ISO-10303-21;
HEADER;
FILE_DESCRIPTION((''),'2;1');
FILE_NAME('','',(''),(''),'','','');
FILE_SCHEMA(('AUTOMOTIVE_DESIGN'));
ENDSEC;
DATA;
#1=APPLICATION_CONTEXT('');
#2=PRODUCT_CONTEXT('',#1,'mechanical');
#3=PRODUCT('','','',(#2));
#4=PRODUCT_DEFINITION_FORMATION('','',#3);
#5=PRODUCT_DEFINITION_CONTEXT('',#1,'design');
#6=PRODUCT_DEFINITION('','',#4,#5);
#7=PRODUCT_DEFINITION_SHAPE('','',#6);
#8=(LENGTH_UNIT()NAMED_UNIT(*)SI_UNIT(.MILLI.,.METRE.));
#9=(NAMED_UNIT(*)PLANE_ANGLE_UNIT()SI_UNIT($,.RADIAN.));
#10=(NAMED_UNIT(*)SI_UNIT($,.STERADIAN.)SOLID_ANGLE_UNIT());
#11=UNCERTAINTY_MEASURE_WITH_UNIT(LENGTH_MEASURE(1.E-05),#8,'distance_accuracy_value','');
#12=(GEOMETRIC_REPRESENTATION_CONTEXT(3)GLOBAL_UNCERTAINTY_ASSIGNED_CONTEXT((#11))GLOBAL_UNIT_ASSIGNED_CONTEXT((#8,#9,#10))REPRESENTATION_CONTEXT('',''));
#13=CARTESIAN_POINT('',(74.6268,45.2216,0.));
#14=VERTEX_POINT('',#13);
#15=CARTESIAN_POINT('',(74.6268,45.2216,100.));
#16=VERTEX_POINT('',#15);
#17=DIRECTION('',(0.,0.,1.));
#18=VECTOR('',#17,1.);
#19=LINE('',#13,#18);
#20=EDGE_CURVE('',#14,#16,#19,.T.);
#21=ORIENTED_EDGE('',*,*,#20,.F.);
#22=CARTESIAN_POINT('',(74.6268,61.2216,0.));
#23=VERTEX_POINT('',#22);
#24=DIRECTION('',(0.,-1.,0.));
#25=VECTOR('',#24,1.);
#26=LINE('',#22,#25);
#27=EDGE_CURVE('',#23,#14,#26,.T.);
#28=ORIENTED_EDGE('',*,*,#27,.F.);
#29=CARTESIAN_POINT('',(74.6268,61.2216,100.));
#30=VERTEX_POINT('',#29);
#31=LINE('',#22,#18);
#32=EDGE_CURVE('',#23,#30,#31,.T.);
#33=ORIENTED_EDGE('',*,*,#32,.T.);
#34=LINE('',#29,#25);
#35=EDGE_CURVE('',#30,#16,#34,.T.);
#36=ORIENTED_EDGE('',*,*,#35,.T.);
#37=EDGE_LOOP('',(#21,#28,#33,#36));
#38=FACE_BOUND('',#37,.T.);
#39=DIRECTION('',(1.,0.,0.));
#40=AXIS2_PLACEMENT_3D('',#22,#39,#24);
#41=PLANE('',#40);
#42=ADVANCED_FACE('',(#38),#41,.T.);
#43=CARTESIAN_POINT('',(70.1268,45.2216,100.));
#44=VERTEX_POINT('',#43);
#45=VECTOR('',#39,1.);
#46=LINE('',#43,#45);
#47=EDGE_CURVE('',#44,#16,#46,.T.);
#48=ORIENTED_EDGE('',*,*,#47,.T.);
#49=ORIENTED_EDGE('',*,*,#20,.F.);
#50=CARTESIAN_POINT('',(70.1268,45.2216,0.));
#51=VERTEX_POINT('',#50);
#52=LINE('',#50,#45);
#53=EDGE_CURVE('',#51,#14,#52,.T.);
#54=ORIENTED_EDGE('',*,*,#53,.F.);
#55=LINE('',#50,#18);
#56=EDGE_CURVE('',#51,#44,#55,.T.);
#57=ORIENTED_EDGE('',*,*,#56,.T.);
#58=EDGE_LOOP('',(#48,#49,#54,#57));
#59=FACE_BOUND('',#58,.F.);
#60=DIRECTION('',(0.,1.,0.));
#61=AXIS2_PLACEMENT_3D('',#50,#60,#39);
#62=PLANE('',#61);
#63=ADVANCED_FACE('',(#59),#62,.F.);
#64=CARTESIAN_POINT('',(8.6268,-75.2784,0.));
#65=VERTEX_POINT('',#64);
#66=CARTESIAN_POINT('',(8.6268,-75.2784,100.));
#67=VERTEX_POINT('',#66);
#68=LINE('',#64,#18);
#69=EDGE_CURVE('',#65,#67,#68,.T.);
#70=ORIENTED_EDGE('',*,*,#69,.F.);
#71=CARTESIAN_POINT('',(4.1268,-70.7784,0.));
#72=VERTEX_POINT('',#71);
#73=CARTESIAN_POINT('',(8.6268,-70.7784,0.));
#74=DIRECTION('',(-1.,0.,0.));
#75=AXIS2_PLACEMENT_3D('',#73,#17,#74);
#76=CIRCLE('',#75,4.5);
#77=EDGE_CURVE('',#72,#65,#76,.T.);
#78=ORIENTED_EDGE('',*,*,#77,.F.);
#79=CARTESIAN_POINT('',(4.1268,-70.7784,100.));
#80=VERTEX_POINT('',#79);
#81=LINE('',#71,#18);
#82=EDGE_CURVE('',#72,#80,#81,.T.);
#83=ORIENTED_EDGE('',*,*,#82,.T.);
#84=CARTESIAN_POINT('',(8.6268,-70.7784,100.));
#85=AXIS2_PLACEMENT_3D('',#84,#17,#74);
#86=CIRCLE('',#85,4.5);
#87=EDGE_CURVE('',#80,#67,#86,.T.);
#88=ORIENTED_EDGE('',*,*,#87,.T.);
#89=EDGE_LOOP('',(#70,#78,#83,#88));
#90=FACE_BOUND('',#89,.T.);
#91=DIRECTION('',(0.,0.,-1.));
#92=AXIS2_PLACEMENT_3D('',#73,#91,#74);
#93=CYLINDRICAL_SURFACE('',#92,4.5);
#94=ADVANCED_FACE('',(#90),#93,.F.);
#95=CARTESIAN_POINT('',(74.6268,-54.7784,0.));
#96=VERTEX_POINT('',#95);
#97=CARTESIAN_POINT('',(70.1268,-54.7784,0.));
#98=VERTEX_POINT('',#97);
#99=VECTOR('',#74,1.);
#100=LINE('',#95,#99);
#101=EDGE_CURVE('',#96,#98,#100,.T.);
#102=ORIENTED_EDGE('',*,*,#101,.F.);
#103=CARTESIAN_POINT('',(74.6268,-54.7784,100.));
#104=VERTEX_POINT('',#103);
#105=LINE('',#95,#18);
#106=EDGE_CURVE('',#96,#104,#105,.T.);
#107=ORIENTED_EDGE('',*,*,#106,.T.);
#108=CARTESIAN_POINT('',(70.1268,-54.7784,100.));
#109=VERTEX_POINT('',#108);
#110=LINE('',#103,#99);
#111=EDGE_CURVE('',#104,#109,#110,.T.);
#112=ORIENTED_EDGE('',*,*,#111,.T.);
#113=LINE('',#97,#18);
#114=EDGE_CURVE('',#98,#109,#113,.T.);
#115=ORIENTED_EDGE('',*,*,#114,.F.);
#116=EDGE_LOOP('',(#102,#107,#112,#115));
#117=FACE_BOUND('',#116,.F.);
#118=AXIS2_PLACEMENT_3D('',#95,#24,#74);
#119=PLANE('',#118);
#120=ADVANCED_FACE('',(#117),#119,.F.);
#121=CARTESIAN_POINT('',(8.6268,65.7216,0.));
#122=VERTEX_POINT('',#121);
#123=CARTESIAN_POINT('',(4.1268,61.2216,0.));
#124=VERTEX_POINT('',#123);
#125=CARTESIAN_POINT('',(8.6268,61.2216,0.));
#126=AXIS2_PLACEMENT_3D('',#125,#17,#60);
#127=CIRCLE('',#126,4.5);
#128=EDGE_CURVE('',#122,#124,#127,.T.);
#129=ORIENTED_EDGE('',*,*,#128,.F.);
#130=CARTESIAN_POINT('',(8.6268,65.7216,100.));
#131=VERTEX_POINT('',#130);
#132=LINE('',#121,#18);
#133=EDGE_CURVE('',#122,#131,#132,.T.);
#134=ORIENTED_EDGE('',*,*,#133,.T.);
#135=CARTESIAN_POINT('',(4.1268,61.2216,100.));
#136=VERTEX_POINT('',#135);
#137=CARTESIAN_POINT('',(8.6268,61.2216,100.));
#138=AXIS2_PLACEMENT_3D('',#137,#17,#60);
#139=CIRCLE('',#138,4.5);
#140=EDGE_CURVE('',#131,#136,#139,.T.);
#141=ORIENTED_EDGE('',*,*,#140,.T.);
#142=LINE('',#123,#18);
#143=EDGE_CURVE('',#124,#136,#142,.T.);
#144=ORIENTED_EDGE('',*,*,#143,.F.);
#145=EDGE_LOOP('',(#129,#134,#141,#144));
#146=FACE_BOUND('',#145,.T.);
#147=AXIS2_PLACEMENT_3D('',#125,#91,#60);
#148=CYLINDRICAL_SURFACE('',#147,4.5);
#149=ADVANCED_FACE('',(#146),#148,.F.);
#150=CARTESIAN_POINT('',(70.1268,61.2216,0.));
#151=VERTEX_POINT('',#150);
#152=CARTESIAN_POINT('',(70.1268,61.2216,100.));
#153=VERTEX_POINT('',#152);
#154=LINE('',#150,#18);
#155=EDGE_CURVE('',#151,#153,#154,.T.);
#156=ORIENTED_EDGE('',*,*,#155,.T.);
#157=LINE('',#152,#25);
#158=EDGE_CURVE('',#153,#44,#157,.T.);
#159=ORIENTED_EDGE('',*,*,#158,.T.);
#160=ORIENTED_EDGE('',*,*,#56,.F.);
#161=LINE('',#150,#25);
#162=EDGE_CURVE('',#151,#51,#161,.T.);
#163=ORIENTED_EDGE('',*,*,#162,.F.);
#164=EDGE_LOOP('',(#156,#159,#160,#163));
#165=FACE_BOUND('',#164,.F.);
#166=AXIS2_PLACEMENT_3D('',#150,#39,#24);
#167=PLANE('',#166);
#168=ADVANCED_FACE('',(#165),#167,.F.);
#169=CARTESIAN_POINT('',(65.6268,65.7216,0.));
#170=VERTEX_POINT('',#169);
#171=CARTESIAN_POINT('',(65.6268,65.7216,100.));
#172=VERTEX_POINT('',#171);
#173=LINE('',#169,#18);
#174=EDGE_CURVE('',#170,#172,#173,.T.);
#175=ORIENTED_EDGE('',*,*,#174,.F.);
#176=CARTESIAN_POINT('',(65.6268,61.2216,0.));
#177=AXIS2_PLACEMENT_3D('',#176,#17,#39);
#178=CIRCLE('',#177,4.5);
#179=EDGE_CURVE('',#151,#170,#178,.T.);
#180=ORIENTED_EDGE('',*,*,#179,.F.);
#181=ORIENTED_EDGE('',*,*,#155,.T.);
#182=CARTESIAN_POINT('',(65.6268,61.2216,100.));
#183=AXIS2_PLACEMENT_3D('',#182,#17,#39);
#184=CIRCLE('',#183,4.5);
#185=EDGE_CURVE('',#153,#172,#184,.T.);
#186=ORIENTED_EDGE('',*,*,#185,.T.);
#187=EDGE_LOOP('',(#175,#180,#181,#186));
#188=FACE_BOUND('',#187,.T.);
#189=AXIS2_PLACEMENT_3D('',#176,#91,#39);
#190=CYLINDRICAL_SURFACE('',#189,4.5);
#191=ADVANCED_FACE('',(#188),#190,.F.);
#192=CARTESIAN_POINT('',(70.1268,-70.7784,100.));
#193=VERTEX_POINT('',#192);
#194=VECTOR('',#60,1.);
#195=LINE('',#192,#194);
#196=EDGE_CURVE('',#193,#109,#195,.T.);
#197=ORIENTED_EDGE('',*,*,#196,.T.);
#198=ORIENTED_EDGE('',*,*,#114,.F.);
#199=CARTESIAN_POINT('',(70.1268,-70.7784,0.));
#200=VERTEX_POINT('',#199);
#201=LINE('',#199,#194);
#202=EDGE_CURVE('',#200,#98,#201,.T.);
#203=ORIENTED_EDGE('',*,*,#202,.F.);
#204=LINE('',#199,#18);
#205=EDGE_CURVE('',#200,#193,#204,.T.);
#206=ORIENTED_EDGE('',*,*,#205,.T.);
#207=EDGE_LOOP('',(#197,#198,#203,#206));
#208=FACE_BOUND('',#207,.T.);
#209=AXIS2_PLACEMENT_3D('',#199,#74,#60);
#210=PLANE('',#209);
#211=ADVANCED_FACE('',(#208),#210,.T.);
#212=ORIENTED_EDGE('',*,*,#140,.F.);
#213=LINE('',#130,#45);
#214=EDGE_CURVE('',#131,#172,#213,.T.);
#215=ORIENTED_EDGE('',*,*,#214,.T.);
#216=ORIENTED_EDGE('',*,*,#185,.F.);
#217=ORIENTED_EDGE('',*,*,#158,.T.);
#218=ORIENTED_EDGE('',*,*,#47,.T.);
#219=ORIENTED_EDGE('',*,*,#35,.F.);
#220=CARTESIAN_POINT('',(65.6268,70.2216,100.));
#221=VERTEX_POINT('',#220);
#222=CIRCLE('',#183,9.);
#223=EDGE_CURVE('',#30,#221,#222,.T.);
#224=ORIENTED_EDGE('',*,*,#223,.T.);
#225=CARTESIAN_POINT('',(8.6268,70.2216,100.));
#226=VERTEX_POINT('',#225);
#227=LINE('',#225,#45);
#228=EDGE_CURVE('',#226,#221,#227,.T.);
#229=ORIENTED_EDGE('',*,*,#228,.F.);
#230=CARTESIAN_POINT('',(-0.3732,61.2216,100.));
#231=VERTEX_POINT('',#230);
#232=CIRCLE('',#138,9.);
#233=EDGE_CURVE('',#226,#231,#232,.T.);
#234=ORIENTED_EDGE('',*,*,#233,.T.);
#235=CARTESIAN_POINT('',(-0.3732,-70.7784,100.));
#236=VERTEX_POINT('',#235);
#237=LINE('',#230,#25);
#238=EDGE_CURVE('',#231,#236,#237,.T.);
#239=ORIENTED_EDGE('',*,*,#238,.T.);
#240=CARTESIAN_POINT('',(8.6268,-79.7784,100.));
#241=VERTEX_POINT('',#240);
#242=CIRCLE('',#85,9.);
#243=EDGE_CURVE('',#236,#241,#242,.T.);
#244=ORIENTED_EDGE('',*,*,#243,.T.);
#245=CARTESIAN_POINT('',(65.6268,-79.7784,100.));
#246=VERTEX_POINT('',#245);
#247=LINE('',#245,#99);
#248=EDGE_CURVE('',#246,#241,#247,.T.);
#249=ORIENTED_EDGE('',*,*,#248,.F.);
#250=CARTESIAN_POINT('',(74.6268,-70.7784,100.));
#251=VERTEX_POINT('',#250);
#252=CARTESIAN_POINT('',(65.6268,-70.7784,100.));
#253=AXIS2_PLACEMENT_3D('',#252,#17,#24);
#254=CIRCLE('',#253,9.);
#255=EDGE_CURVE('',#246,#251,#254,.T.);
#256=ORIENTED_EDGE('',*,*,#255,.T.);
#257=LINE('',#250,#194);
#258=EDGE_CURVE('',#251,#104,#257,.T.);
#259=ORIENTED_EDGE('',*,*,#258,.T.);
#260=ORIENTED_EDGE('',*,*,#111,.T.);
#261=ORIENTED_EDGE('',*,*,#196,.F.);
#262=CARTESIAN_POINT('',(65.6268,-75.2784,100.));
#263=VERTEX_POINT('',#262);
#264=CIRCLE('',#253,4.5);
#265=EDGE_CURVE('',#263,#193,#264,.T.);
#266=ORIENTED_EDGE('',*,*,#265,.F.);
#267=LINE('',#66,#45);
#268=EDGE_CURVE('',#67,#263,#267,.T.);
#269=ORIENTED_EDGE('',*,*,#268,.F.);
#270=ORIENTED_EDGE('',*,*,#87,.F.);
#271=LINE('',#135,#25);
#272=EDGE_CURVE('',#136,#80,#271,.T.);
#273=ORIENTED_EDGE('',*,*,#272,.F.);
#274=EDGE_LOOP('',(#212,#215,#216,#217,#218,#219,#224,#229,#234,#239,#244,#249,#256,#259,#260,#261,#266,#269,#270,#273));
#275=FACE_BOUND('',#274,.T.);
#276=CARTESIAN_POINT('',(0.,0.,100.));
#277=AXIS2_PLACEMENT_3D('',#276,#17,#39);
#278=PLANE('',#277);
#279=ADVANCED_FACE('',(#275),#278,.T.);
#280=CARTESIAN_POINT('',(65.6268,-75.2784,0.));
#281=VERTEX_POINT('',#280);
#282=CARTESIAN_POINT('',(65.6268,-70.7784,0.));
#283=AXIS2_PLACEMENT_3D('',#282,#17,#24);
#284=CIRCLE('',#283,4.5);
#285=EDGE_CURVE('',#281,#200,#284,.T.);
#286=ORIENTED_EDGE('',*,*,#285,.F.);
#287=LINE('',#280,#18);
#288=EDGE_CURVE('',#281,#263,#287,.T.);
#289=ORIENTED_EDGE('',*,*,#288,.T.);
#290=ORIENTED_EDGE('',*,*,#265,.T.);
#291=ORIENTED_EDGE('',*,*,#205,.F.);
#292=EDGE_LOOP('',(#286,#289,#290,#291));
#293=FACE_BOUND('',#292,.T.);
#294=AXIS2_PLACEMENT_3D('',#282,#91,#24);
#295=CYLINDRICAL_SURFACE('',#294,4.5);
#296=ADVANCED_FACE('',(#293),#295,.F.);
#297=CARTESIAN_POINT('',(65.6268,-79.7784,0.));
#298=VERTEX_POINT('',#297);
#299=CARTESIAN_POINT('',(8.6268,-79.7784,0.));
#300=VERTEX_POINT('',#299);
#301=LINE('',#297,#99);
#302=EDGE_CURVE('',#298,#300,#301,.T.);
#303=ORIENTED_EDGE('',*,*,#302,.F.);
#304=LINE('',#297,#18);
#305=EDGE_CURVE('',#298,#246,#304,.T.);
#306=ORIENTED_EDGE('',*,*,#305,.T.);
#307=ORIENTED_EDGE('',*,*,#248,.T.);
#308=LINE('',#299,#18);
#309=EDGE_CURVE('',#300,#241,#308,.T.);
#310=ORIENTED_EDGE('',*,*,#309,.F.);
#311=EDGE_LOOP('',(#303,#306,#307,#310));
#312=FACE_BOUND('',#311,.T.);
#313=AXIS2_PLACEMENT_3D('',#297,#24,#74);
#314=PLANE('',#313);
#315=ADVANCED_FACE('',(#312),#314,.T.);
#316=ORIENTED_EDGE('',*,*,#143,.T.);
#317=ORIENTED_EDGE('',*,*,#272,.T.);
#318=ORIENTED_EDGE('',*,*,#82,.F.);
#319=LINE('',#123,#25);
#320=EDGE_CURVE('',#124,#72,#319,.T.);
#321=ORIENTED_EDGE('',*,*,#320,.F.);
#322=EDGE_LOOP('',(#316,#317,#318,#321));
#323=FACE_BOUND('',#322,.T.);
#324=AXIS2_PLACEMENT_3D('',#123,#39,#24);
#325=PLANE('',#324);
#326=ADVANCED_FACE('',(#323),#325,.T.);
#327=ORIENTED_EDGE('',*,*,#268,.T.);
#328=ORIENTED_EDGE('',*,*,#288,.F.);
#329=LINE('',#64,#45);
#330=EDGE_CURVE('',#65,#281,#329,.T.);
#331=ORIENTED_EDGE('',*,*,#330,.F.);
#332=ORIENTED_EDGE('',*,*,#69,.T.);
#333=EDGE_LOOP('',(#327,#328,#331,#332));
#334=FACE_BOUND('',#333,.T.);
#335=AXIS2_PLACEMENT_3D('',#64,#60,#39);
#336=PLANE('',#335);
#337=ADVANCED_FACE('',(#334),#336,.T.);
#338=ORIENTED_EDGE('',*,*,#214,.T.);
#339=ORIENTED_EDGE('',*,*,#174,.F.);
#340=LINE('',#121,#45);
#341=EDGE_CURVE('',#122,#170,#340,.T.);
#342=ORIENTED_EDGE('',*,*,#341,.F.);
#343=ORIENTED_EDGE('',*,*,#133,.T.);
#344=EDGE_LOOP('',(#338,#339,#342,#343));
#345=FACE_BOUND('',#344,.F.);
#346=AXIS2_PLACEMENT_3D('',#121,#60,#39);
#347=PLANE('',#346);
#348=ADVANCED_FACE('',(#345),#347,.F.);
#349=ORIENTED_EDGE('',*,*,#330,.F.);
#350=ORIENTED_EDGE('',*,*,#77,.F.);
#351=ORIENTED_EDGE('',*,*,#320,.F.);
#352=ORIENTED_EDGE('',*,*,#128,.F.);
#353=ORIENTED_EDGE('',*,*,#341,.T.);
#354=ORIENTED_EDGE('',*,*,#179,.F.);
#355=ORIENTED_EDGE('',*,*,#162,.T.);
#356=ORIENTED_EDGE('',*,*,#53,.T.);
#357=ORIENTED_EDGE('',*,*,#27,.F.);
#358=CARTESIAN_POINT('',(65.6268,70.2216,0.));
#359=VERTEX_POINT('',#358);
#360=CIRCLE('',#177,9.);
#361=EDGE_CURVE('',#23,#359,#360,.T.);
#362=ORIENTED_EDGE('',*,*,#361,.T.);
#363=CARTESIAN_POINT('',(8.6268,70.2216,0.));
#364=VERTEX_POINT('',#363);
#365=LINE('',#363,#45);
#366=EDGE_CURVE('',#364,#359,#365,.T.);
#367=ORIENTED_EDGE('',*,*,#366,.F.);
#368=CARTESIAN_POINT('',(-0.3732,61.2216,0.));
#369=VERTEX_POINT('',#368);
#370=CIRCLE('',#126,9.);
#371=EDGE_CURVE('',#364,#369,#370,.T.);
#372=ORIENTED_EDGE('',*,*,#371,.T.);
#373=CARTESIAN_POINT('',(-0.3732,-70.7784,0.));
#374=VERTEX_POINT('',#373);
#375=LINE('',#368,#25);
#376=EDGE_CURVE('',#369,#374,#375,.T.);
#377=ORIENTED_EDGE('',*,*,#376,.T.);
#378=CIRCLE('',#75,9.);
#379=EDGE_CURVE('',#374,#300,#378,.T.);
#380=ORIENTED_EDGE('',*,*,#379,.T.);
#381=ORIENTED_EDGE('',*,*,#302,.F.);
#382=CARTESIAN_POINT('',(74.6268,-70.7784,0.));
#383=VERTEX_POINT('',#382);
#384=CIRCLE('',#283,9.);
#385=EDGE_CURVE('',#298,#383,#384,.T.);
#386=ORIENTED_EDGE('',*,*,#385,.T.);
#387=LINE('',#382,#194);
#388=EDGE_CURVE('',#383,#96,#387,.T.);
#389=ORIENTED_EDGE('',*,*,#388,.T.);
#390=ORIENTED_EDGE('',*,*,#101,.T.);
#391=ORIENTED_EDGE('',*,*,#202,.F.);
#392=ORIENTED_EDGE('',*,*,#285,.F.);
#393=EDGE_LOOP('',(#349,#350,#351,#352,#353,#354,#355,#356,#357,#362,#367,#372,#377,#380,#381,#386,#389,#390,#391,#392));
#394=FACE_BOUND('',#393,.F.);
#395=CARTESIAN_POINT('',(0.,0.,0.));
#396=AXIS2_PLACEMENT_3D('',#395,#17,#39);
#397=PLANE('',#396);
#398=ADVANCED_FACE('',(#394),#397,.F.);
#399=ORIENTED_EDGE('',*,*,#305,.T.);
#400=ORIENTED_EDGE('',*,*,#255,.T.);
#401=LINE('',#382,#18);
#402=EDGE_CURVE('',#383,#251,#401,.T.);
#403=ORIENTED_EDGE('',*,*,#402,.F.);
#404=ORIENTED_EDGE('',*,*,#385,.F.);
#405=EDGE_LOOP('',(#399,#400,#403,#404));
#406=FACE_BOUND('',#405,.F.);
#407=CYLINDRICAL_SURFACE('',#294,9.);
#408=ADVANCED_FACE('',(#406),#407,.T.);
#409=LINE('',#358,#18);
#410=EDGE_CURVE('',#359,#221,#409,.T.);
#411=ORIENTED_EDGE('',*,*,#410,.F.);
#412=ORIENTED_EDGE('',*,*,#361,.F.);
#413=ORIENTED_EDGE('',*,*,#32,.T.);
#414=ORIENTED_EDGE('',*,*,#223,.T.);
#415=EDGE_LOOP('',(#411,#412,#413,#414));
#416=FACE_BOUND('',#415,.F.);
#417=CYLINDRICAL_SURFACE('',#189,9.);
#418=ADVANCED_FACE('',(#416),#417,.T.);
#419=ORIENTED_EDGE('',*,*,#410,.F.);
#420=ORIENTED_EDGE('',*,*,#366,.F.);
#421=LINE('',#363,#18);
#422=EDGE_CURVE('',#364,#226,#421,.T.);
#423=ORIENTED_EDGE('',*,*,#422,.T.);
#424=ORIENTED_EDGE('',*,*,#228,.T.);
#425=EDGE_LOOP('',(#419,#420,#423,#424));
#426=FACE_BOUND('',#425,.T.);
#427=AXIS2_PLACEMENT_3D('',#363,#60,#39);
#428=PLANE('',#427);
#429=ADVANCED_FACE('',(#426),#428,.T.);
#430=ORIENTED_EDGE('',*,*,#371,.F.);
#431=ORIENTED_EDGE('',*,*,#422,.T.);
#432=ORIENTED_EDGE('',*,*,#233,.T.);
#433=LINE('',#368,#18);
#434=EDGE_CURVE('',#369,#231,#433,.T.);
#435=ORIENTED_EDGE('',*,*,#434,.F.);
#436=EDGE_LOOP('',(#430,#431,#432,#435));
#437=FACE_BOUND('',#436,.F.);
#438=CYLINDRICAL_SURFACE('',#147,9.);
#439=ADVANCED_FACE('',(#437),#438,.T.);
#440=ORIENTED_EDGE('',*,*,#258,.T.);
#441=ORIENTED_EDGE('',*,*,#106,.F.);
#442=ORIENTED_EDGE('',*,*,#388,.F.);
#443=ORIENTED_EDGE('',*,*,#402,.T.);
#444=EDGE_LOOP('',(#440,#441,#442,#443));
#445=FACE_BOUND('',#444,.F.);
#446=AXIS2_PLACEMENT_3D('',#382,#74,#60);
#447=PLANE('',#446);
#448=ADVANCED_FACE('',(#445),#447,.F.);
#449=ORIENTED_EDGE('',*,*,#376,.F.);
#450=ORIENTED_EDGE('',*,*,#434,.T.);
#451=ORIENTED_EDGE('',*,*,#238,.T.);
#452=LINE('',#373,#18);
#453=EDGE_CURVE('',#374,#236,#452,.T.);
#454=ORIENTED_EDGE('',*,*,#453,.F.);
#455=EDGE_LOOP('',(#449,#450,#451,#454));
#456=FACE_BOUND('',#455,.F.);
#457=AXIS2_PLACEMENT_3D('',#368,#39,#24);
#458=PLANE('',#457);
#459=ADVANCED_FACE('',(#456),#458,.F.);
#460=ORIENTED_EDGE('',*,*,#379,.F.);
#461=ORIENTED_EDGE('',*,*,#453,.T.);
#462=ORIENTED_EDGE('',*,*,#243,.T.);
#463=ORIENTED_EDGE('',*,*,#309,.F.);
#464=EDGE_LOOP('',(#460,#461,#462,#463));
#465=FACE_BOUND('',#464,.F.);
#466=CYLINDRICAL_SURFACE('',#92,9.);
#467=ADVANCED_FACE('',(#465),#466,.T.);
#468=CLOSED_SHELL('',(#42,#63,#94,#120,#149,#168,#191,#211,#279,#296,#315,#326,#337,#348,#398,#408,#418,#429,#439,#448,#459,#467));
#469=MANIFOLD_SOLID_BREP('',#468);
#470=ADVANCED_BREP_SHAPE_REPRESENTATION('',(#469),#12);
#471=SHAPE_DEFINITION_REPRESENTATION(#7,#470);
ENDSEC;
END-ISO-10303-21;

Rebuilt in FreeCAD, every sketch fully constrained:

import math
import FreeCAD as App
import Part
import Sketcher

V = App.Vector

doc = App.newDocument("Part")
body = doc.addObject("PartDesign::Body", "Body")

sketch1 = doc.addObject("Sketcher::SketchObject", "Sketch")
body.addObject(sketch1)
sketch1.AttachmentSupport = (doc.XY_Plane, [""])
sketch1.MapMode = "FlatFace"
sketch1.addGeometry([
    Part.LineSegment(V(8.6, -79.8, 0), V(65.6, -79.8, 0)),
    Part.ArcOfCircle(Part.Circle(V(65.6, -70.8, 0), V(0, 0, 1), 9), math.radians(-90), math.radians(0)),
    Part.LineSegment(V(74.6, -70.8, 0), V(74.6, -54.8, 0)),
    Part.LineSegment(V(74.6, -54.8, 0), V(70.1, -54.8, 0)),
    Part.LineSegment(V(70.1, -54.8, 0), V(70.1, -70.8, 0)),
    Part.ArcOfCircle(Part.Circle(V(65.6, -70.8, 0), V(0, 0, 1), 4.5), math.radians(-90), math.radians(0)),
    Part.LineSegment(V(65.6, -75.3, 0), V(8.6, -75.3, 0)),
    Part.ArcOfCircle(Part.Circle(V(8.6, -70.8, 0), V(0, 0, 1), 4.5), math.radians(180), math.radians(270)),
    Part.LineSegment(V(4.1, -70.8, 0), V(4.1, 61.2, 0)),
    Part.ArcOfCircle(Part.Circle(V(8.6, 61.2, 0), V(0, 0, 1), 4.5), math.radians(90), math.radians(180)),
    Part.LineSegment(V(8.6, 65.7, 0), V(65.6, 65.7, 0)),
    Part.ArcOfCircle(Part.Circle(V(65.6, 61.2, 0), V(0, 0, 1), 4.5), math.radians(0), math.radians(90)),
    Part.LineSegment(V(70.1, 61.2, 0), V(70.1, 45.2, 0)),
    Part.LineSegment(V(70.1, 45.2, 0), V(74.6, 45.2, 0)),
    Part.LineSegment(V(74.6, 45.2, 0), V(74.6, 61.2, 0)),
    Part.ArcOfCircle(Part.Circle(V(65.6, 61.2, 0), V(0, 0, 1), 9), math.radians(0), math.radians(90)),
    Part.LineSegment(V(65.6, 70.2, 0), V(8.6, 70.2, 0)),
    Part.ArcOfCircle(Part.Circle(V(8.6, 61.2, 0), V(0, 0, 1), 9), math.radians(90), math.radians(180)),
    Part.LineSegment(V(-0.4, 61.2, 0), V(-0.4, -70.8, 0)),
    Part.ArcOfCircle(Part.Circle(V(8.6, -70.8, 0), V(0, 0, 1), 9), math.radians(180), math.radians(270)),
], False)
sketch1.addConstraint([
    Sketcher.Constraint("Tangent", 0, 2, 1, 1),
    Sketcher.Constraint("Tangent", 1, 2, 2, 1),
    Sketcher.Constraint("Coincident", 2, 2, 3, 1),
    Sketcher.Constraint("Coincident", 3, 2, 4, 1),
    Sketcher.Constraint("Tangent", 4, 2, 5, 2),
    Sketcher.Constraint("Tangent", 5, 1, 6, 1),
    Sketcher.Constraint("Tangent", 6, 2, 7, 2),
    Sketcher.Constraint("Tangent", 7, 1, 8, 1),
    Sketcher.Constraint("Tangent", 8, 2, 9, 2),
    Sketcher.Constraint("Tangent", 9, 1, 10, 1),
    Sketcher.Constraint("Tangent", 10, 2, 11, 2),
    Sketcher.Constraint("Tangent", 11, 1, 12, 1),
    Sketcher.Constraint("Coincident", 12, 2, 13, 1),
    Sketcher.Constraint("Coincident", 13, 2, 14, 1),
    Sketcher.Constraint("Tangent", 14, 2, 15, 1),
    Sketcher.Constraint("Tangent", 15, 2, 16, 1),
    Sketcher.Constraint("Tangent", 16, 2, 17, 1),
    Sketcher.Constraint("Tangent", 17, 2, 18, 1),
    Sketcher.Constraint("Tangent", 18, 2, 19, 1),
    Sketcher.Constraint("Tangent", 19, 2, 0, 1),
    Sketcher.Constraint("Horizontal", 0),
    Sketcher.Constraint("Vertical", 2),
    Sketcher.Constraint("Horizontal", 3),
    Sketcher.Constraint("Vertical", 4),
    Sketcher.Constraint("Horizontal", 6),
    Sketcher.Constraint("Vertical", 8),
    Sketcher.Constraint("Horizontal", 10),
    Sketcher.Constraint("Vertical", 12),
    Sketcher.Constraint("Horizontal", 13),
    Sketcher.Constraint("Vertical", 14),
    Sketcher.Constraint("Horizontal", 16),
    Sketcher.Constraint("Vertical", 18),
    Sketcher.Constraint("Coincident", 5, 3, 1, 3),
    Sketcher.Constraint("Coincident", 15, 3, 11, 3),
    Sketcher.Constraint("Coincident", 17, 3, 9, 3),
    Sketcher.Constraint("Coincident", 19, 3, 7, 3),
    Sketcher.Constraint("Equal", 5, 7),
    Sketcher.Constraint("Equal", 7, 9),
    Sketcher.Constraint("Equal", 9, 11),
    Sketcher.Constraint("Vertical", 5, 3, 11, 3),
    Sketcher.Constraint("Equal", 4, 12),
    Sketcher.Constraint("Radius", 1, 9.0),
    Sketcher.Constraint("Radius", 5, 4.5),
    Sketcher.Constraint("DistanceX", 0, 1, 0, 2, 57.0),
    Sketcher.Constraint("DistanceY", 2, 1, 2, 2, 16.0),
    Sketcher.Constraint("DistanceY", 8, 1, 8, 2, 132.0),
    Sketcher.Constraint("DistanceX", -1, 1, 1, 3, 65.6268),
    Sketcher.Constraint("DistanceY", 1, 3, -1, 1, 70.7784),
])
pad1 = doc.addObject("PartDesign::Pad", "Pad")
body.addObject(pad1)
pad1.Profile = sketch1
pad1.Length = 100

doc.recompute()
